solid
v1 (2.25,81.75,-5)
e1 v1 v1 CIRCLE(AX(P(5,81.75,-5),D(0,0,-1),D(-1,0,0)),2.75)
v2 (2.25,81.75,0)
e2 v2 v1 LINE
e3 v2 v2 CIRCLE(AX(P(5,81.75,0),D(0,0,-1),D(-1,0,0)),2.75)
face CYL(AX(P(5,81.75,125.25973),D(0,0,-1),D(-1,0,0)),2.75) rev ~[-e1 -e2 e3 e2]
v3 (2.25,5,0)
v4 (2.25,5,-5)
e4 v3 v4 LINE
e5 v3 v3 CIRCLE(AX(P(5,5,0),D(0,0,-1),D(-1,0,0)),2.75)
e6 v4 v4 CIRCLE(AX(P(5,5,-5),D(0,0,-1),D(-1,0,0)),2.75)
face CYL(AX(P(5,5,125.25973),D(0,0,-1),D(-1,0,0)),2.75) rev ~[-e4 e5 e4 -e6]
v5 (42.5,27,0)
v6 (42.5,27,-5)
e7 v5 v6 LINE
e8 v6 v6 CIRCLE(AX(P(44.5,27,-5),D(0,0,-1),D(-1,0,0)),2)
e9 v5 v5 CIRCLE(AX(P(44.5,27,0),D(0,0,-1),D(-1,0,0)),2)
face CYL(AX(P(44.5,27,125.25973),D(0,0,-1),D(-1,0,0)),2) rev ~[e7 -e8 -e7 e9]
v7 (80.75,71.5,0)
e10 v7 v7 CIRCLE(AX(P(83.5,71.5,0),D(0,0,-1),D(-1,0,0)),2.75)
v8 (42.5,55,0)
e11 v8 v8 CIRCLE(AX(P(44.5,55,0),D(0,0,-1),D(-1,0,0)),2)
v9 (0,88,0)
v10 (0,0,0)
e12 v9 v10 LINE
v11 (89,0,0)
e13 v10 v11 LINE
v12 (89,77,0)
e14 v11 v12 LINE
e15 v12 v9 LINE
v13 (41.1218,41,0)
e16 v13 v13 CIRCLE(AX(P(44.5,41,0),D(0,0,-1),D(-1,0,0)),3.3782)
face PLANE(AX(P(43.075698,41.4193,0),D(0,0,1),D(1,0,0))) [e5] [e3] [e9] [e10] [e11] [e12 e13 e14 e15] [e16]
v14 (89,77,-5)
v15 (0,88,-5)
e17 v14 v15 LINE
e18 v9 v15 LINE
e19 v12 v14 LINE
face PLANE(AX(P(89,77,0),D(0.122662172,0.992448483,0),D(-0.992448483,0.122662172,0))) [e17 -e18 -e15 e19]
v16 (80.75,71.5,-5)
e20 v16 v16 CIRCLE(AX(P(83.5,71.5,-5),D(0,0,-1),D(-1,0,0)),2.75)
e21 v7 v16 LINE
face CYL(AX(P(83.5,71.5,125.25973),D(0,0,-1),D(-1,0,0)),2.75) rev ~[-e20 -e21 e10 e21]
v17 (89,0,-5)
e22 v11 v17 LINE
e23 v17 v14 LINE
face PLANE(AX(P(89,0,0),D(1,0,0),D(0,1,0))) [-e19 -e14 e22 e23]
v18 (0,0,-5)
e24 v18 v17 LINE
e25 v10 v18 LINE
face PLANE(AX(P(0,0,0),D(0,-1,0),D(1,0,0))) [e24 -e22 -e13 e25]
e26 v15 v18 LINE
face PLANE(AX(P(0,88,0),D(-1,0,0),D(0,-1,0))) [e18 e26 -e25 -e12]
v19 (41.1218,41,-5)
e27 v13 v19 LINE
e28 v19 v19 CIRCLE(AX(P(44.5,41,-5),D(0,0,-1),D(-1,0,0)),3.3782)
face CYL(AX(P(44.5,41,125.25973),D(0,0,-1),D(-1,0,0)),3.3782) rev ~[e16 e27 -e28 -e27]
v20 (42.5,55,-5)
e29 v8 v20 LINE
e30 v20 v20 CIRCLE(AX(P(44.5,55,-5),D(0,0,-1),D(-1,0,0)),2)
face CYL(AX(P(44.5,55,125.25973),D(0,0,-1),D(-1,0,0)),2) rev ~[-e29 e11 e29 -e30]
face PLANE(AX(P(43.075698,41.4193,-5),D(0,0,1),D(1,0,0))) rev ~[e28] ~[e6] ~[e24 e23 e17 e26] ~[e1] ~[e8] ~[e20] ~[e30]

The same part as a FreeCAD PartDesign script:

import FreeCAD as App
import Part
import Sketcher
from FreeCAD import Vector


def add_polygon(sketch, points):
    """Adds a closed chain of lines whose ends are joined by coincident constraints."""
    first, n = sketch.GeometryCount, len(points)
    for a, b in zip(points, points[1:] + points[:1]):
        sketch.addGeometry(Part.LineSegment(App.Vector(*a, 0), App.Vector(*b, 0)), False)
    for i in range(n):
        sketch.addConstraint(Sketcher.Constraint("Coincident", first + i, 2, first + (i + 1) % n, 1))

doc = App.newDocument("Part")
body = doc.addObject("PartDesign::Body", "Body")

# Sketch on XY plane
sketch1 = doc.addObject("Sketcher::SketchObject", "Sketch")
body.addObject(sketch1)
sketch1.AttachmentSupport = (doc.XY_Plane, [""])
sketch1.MapMode = "FlatFace"
add_polygon(sketch1, [(0, 88), (0, 0), (89, 0), (89, 77)])  # lines 0-3
sketch1.addConstraint(Sketcher.Constraint("Vertical", 0))
sketch1.addConstraint(Sketcher.Constraint("Horizontal", 1))
sketch1.addConstraint(Sketcher.Constraint("Vertical", 2))
sketch1.addConstraint(Sketcher.Constraint("Coincident", 0, 2, -1, 1))
sketch1.addConstraint(Sketcher.Constraint("DistanceX", 1, 1, 1, 2, 89.0))
sketch1.addConstraint(Sketcher.Constraint("DistanceY", 0, 2, 0, 1, 88.0))
sketch1.addConstraint(Sketcher.Constraint("DistanceY", 2, 1, 2, 2, 77.0))
pad1 = doc.addObject("PartDesign::Pad", "Pad")
body.addObject(pad1)
pad1.Profile = sketch1
pad1.Length = 5
pad1.Reversed = True

# Sketch on XY plane
sketch2 = doc.addObject("Sketcher::SketchObject", "Sketch001")
body.addObject(sketch2)
sketch2.AttachmentSupport = (doc.XY_Plane, [""])
sketch2.MapMode = "FlatFace"
sketch2.addGeometry(Part.Circle(Vector(5, 5, 0), Vector(0, 0, 1), 2.75), False)
sketch2.addGeometry(Part.Circle(Vector(5, 81.75, 0), Vector(0, 0, 1), 2.75), False)
sketch2.addGeometry(Part.Circle(Vector(83.5, 71.5, 0), Vector(0, 0, 1), 2.75), False)
sketch2.addConstraint(Sketcher.Constraint("Equal", 0, 1))
sketch2.addConstraint(Sketcher.Constraint("Equal", 1, 2))
sketch2.addConstraint(Sketcher.Constraint("Vertical", 0, 3, 1, 3))
sketch2.addConstraint(Sketcher.Constraint("Diameter", 0, 5.5))
sketch2.addConstraint(Sketcher.Constraint("DistanceX", -1, 1, 0, 3, 5.0))
sketch2.addConstraint(Sketcher.Constraint("DistanceY", -1, 1, 0, 3, 5.0))
sketch2.addConstraint(Sketcher.Constraint("DistanceX", -1, 1, 2, 3, 83.5))
sketch2.addConstraint(Sketcher.Constraint("DistanceY", -1, 1, 2, 3, 71.5))
sketch2.addConstraint(Sketcher.Constraint("DistanceY", -1, 1, 1, 3, 81.75))
doc.recompute()
hole = doc.addObject("PartDesign::Hole", "Hole")
body.addObject(hole)
hole.Profile = sketch2
hole.ThreadType = "None"
hole.Diameter = 5.5
hole.DepthType = "ThroughAll"

# Sketch on XY plane
sketch3 = doc.addObject("Sketcher::SketchObject", "Sketch002")
body.addObject(sketch3)
sketch3.AttachmentSupport = (doc.XY_Plane, [""])
sketch3.MapMode = "FlatFace"
sketch3.addGeometry(Part.Circle(Vector(44.5, 41, 0), Vector(0, 0, 1), 3.3782), False)
sketch3.addConstraint(Sketcher.Constraint("DistanceY", -1, 1, 0, 3, 41.0))
sketch3.addConstraint(Sketcher.Constraint("Diameter", 0, 6.7564))
sketch3.addConstraint(Sketcher.Constraint("DistanceX", -1, 1, 0, 3, 44.5))
doc.recompute()
hole2 = doc.addObject("PartDesign::Hole", "Hole001")
body.addObject(hole2)
hole2.Profile = sketch3
hole2.ThreadType = "None"
hole2.Diameter = 6.7564
hole2.DepthType = "ThroughAll"

# Sketch on XY plane
sketch4 = doc.addObject("Sketcher::SketchObject", "Sketch003")
body.addObject(sketch4)
sketch4.AttachmentSupport = (doc.XY_Plane, [""])
sketch4.MapMode = "FlatFace"
sketch4.addGeometry(Part.Circle(Vector(44.5, 55, 0), Vector(0, 0, 1), 2), False)
sketch4.addGeometry(Part.Circle(Vector(44.5, 27, 0), Vector(0, 0, 1), 2), False)
sketch4.addConstraint(Sketcher.Constraint("Equal", 0, 1))
sketch4.addConstraint(Sketcher.Constraint("Vertical", 0, 3, 1, 3))
sketch4.addConstraint(Sketcher.Constraint("Diameter", 0, 4.0))
sketch4.addConstraint(Sketcher.Constraint("DistanceY", -1, 1, 0, 3, 55.0))
sketch4.addConstraint(Sketcher.Constraint("DistanceY", -1, 1, 1, 3, 27.0))
sketch4.addConstraint(Sketcher.Constraint("DistanceX", -1, 1, 0, 3, 44.5))
doc.recompute()
hole3 = doc.addObject("PartDesign::Hole", "Hole002")
body.addObject(hole3)
hole3.Profile = sketch4
hole3.ThreadType = "None"
hole3.Diameter = 4
hole3.DepthType = "ThroughAll"

doc.recompute()
